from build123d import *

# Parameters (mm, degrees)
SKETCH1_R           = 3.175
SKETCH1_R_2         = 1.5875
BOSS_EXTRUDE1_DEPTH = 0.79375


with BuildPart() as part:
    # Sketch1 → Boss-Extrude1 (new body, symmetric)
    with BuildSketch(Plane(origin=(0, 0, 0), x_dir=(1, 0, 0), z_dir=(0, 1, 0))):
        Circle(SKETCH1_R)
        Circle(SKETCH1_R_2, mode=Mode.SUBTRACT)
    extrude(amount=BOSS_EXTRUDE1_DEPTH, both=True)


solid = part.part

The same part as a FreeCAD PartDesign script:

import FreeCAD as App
import Part
import Sketcher

V = App.Vector
Q = App.Units.Quantity

doc = App.newDocument("Part")
body = doc.addObject("PartDesign::Body", "Body")

# Sketch on XZ plane
sketch1 = doc.addObject("Sketcher::SketchObject", "Sketch")
body.addObject(sketch1)
sketch1.AttachmentSupport = (doc.XZ_Plane, [""])
sketch1.MapMode = "FlatFace"
sketch1.addGeometry([
    Part.Circle(V(0, 0, 0), V(0, 0, 1), 3.2),
    Part.Circle(V(0, 0, 0), V(0, 0, 1), 1.6),
], False)
sketch1.addConstraint([
    Sketcher.Constraint("Coincident", 0, 3, -1, 1),
    Sketcher.Constraint("Coincident", 1, 3, -1, 1),
    Sketcher.Constraint("Diameter", 0, Q("0.25 in")),
    Sketcher.Constraint("Diameter", 1, Q("0.125 in")),
])
pad1 = doc.addObject("PartDesign::Pad", "Pad")
body.addObject(pad1)
pad1.Profile = sketch1
pad1.Length = Q("0.0625 in")
pad1.Midplane = True

doc.recompute()
